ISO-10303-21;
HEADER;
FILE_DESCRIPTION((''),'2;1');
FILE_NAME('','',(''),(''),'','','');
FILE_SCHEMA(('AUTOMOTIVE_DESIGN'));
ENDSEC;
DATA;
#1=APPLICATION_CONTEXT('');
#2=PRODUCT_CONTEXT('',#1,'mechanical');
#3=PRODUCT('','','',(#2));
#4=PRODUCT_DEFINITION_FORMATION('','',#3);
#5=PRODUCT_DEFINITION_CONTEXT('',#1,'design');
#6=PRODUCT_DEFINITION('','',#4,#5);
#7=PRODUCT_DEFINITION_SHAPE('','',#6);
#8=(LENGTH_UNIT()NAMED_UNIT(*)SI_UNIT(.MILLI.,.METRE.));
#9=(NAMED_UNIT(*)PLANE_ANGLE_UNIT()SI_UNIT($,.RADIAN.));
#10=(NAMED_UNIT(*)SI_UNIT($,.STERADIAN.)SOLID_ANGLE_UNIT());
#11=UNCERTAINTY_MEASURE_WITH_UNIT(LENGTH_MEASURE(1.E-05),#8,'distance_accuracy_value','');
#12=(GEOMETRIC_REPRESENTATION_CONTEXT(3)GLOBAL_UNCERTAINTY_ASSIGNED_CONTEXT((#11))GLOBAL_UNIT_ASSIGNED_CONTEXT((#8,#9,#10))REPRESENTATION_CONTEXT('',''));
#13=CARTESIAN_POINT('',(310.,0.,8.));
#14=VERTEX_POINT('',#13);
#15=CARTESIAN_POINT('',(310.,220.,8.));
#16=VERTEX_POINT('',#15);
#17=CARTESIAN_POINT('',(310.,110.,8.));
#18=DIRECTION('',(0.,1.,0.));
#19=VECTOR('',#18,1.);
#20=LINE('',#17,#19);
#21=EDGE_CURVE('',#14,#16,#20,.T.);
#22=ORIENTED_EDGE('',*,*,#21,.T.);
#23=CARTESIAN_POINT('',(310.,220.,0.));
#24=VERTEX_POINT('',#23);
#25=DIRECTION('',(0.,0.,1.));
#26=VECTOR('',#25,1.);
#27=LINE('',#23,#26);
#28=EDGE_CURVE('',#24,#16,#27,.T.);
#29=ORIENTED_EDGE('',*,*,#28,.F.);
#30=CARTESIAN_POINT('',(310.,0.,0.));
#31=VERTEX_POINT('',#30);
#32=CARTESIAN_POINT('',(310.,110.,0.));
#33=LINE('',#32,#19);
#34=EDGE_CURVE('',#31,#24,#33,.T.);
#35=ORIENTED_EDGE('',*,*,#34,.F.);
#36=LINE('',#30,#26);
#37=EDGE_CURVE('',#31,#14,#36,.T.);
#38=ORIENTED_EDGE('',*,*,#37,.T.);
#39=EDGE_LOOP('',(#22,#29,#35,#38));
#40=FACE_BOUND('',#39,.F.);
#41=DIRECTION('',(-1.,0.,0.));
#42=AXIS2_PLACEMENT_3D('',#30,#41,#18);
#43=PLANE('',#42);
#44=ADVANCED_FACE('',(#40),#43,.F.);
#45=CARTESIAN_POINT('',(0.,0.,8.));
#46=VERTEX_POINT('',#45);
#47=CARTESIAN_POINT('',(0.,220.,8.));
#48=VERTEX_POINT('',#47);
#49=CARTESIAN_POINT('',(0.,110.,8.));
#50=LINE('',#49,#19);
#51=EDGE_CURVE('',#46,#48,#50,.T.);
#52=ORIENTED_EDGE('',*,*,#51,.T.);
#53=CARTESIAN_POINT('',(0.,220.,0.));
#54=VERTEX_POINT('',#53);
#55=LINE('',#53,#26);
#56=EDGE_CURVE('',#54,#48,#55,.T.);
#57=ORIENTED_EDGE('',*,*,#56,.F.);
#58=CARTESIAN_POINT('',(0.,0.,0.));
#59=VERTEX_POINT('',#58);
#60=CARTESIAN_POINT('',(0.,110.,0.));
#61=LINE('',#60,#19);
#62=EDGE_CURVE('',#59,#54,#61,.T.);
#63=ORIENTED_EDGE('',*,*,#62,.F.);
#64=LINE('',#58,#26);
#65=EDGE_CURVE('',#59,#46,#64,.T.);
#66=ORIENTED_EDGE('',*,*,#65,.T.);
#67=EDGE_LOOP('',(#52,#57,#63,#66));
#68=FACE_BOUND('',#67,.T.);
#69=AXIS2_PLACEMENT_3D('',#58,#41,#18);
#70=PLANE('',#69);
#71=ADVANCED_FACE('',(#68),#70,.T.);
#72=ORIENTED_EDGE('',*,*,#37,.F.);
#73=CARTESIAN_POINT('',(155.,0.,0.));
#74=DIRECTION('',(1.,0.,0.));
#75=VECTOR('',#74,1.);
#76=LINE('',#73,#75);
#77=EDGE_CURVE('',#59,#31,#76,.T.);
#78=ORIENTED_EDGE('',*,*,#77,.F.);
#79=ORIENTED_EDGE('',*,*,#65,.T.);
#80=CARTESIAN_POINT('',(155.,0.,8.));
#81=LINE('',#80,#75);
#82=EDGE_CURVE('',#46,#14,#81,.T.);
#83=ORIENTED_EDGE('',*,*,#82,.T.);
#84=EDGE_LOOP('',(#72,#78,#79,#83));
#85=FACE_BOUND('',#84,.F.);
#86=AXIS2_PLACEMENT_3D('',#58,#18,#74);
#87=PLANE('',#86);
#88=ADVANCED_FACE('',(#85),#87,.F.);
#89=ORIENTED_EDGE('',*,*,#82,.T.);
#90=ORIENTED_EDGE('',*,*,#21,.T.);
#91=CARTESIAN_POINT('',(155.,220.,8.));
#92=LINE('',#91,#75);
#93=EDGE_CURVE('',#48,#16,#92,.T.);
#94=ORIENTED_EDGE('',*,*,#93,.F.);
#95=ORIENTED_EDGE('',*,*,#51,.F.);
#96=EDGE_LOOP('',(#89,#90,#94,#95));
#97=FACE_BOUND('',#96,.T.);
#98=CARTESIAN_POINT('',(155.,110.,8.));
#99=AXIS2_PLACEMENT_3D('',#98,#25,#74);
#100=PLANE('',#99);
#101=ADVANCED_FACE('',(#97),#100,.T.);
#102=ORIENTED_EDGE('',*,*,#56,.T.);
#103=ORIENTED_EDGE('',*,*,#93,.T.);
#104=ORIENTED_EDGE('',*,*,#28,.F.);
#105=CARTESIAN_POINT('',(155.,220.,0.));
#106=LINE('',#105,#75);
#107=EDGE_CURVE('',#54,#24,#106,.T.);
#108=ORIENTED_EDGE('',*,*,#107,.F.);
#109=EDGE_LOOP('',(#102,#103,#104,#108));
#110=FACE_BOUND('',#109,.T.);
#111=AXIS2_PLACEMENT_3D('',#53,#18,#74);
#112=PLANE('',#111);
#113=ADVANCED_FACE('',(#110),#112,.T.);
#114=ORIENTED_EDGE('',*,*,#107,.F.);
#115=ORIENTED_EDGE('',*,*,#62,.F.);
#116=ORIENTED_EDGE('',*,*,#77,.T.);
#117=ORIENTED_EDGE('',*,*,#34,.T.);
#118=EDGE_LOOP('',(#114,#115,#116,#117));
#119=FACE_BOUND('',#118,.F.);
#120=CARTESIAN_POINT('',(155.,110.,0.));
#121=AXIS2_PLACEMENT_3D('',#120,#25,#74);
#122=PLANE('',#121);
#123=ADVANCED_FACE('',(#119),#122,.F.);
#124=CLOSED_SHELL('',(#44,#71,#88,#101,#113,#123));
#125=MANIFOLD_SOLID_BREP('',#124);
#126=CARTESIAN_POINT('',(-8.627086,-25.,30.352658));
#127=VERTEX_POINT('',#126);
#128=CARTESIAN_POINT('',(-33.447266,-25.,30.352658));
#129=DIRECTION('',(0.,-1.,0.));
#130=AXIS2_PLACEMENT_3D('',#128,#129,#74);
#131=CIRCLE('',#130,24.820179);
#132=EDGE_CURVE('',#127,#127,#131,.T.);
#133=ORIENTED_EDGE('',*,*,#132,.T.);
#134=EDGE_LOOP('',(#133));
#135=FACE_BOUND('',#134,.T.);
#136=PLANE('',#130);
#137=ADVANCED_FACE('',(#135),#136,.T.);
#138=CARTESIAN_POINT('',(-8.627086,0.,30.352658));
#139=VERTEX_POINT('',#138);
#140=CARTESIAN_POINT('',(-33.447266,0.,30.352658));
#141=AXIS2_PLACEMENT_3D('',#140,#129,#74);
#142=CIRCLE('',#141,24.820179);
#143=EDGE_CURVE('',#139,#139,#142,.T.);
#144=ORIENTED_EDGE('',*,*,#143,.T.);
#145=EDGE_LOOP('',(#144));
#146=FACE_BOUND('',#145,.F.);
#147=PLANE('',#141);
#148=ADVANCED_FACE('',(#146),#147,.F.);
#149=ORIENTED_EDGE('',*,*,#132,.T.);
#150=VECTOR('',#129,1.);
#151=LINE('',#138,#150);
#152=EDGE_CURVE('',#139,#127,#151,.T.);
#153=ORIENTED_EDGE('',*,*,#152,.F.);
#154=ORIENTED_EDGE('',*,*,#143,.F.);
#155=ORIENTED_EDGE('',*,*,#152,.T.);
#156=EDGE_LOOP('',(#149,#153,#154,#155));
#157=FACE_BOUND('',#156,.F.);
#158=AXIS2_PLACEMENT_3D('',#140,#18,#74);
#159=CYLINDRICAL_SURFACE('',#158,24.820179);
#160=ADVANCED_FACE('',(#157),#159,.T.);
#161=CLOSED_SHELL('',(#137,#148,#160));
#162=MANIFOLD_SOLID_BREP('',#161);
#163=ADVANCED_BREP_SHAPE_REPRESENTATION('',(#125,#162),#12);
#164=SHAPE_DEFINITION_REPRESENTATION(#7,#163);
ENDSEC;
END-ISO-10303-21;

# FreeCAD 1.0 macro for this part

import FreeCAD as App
import Part
import Sketcher
from FreeCAD import Vector
Q = App.Units.Quantity

doc = App.newDocument("Part")
body = doc.addObject("PartDesign::Body", "Body")

sketch1 = body.newObject("Sketcher::SketchObject", "Sketch")
sketch1.AttachmentSupport = (doc.getObject("XY_Plane"), [""])
sketch1.MapMode = "FlatFace"
sketch1.addGeometry([
    Part.LineSegment(Vector(0, 220, 0), Vector(0, 0, 0)),
    Part.LineSegment(Vector(0, 0, 0), Vector(310, 0, 0)),
    Part.LineSegment(Vector(310, 0, 0), Vector(310, 220, 0)),
    Part.LineSegment(Vector(310, 220, 0), Vector(0, 220, 0)),
], False)
sketch1.addConstraint([
    Sketcher.Constraint("Coincident", 0, 2, 1, 1),
    Sketcher.Constraint("Coincident", 1, 2, 2, 1),
    Sketcher.Constraint("Coincident", 2, 2, 3, 1),
    Sketcher.Constraint("Coincident", 3, 2, 0, 1),
    Sketcher.Constraint("Vertical", 0),
    Sketcher.Constraint("Horizontal", 1),
    Sketcher.Constraint("Vertical", 2),
    Sketcher.Constraint("Horizontal", 3),
    Sketcher.Constraint("Coincident", 0, 2, -1, 1),
    Sketcher.Constraint("DistanceX", 1, 1, 1, 2, Q("310 mm")),
    Sketcher.Constraint("DistanceY", 0, 2, 0, 1, Q("220 mm")),
])
pad1 = body.newObject("PartDesign::Pad", "Pad")
pad1.Profile = sketch1
pad1.Length = 8
body2 = doc.addObject("PartDesign::Body", "Body001")

sketch2 = body2.newObject("Sketcher::SketchObject", "Sketch001")
sketch2.AttachmentSupport = (doc.getObject("XZ_Plane001"), [""])
sketch2.MapMode = "FlatFace"
sketch2.addGeometry(Part.Circle(Vector(-33.447266, 30.352658, 0), Vector(0, 0, 1), 24.820179), False)
sketch2.addConstraint([
    Sketcher.Constraint("Diameter", 0, Q("49.640358 mm")),
    Sketcher.Constraint("DistanceX", 0, 3, -1, 1, Q("33.447266 mm")),
    Sketcher.Constraint("DistanceY", -1, 1, 0, 3, Q("30.352658 mm")),
])
pad2 = body2.newObject("PartDesign::Pad", "Pad001")
pad2.Profile = sketch2
pad2.Length = 25

doc.recompute()
